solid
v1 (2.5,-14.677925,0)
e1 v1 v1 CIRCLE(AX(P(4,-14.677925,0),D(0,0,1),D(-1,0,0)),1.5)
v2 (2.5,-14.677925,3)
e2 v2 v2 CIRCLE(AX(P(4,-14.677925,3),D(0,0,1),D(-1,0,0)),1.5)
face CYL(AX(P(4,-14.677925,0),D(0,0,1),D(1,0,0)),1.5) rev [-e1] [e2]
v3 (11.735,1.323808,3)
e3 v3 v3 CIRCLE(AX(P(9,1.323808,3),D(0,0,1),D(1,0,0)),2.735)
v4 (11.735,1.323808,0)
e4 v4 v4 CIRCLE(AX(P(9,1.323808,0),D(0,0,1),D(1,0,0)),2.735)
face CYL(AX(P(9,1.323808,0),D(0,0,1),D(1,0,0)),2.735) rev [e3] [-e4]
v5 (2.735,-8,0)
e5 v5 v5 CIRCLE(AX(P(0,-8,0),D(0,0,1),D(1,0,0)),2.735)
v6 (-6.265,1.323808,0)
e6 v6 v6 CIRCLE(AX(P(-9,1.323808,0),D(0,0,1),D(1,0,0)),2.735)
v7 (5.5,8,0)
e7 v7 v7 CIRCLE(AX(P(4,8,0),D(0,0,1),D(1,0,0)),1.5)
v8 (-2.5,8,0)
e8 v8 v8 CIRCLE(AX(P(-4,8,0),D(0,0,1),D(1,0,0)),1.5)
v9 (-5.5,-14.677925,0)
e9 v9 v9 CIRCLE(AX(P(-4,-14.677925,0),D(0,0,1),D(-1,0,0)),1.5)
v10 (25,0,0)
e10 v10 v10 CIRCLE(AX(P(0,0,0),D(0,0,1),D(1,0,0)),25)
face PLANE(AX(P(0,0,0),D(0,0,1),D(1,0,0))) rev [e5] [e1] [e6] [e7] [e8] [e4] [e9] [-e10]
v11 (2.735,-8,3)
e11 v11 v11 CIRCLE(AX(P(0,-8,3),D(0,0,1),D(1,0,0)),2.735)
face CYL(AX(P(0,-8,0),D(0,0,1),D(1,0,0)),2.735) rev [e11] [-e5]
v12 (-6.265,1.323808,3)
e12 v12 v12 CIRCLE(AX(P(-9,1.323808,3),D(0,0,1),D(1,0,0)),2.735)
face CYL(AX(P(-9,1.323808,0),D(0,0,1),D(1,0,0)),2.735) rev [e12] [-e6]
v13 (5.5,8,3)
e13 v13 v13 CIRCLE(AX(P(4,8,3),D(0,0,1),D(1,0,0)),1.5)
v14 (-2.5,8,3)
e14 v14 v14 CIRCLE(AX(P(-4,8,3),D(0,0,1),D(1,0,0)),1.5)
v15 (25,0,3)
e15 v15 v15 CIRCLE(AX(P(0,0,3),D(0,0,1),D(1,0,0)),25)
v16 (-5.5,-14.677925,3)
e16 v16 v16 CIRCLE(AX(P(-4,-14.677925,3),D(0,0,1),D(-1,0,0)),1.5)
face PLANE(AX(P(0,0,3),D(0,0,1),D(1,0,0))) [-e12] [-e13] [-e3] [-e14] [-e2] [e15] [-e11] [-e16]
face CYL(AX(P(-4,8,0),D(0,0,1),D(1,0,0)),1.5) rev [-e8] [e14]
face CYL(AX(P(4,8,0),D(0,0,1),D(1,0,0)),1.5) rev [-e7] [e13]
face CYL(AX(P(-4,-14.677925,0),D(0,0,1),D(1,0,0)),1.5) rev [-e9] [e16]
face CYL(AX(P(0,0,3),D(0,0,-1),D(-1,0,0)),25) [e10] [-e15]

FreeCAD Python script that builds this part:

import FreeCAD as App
import Part
import Sketcher

doc = App.newDocument("Part")
body = doc.addObject("PartDesign::Body", "Body")

sketch1 = body.newObject("Sketcher::SketchObject", "Sketch")
sketch1.AttachmentSupport = (doc.getObject("XY_Plane"), [""])
sketch1.MapMode = "FlatFace"
sketch1.addGeometry(Part.Circle(App.Vector(0, 0, 0), App.Vector(0, 0, 1), 25), False)
sketch1.addConstraint(Sketcher.Constraint("Coincident", 0, 3, -1, 1))
sketch1.addConstraint(Sketcher.Constraint("Diameter", 0, 50.0))
pad1 = body.newObject("PartDesign::Pad", "Pad")
pad1.Profile = sketch1
pad1.Length = 3

sketch2 = body.newObject("Sketcher::SketchObject", "Sketch001")
sketch2.AttachmentSupport = (doc.getObject("XY_Plane"), [""])
sketch2.MapMode = "FlatFace"
sketch2.AttachmentOffset = App.Placement(App.Vector(0, 0, 3), App.Rotation())
sketch2.addGeometry(Part.Circle(App.Vector(-4, 8, 0), App.Vector(0, 0, 1), 1.5), False)
sketch2.addGeometry(Part.Circle(App.Vector(4, 8, 0), App.Vector(0, 0, 1), 1.5), False)
sketch2.addGeometry(Part.Circle(App.Vector(4, -14.7, 0), App.Vector(0, 0, 1), 1.5), False)
sketch2.addGeometry(Part.Circle(App.Vector(-4, -14.7, 0), App.Vector(0, 0, 1), 1.5), False)
sketch2.addGeometry(Part.Circle(App.Vector(0, -8, 0), App.Vector(0, 0, 1), 2.7), False)
sketch2.addGeometry(Part.Circle(App.Vector(9, 1.3, 0), App.Vector(0, 0, 1), 2.7), False)
sketch2.addGeometry(Part.Circle(App.Vector(-9, 1.3, 0), App.Vector(0, 0, 1), 2.7), False)
sketch2.addConstraint(Sketcher.Constraint("Equal", 0, 1))
sketch2.addConstraint(Sketcher.Constraint("Equal", 1, 2))
sketch2.addConstraint(Sketcher.Constraint("Equal", 2, 3))
sketch2.addConstraint(Sketcher.Constraint("Equal", 4, 5))
sketch2.addConstraint(Sketcher.Constraint("Equal", 5, 6))
sketch2.addConstraint(Sketcher.Constraint("Symmetric", 0, 3, 1, 3, -2))
sketch2.addConstraint(Sketcher.Constraint("Symmetric", 2, 3, 3, 3, -2))
sketch2.addConstraint(Sketcher.Constraint("Symmetric", 5, 3, 6, 3, -2))
sketch2.addConstraint(Sketcher.Constraint("PointOnObject", 4, 3, -2))
sketch2.addConstraint(Sketcher.Constraint("Vertical", 1, 3, 2, 3))
sketch2.addConstraint(Sketcher.Constraint("Diameter", 0, 3.0))
sketch2.addConstraint(Sketcher.Constraint("Diameter", 4, 5.47))
sketch2.addConstraint(Sketcher.Constraint("DistanceX", 0, 3, -1, 1, 4.0))
sketch2.addConstraint(Sketcher.Constraint("DistanceY", -1, 1, 0, 3, 8.0))
sketch2.addConstraint(Sketcher.Constraint("DistanceY", 4, 3, -1, 1, 8.0))
sketch2.addConstraint(Sketcher.Constraint("DistanceX", -1, 1, 5, 3, 9.0))
sketch2.addConstraint(Sketcher.Constraint("DistanceY", 2, 3, -1, 1, 14.677925))
sketch2.addConstraint(Sketcher.Constraint("DistanceY", -1, 1, 5, 3, 1.323808))
pocket1 = body.newObject("PartDesign::Pocket", "Pocket")
pocket1.Profile = sketch2
pocket1.Length = 3

doc.recompute()
